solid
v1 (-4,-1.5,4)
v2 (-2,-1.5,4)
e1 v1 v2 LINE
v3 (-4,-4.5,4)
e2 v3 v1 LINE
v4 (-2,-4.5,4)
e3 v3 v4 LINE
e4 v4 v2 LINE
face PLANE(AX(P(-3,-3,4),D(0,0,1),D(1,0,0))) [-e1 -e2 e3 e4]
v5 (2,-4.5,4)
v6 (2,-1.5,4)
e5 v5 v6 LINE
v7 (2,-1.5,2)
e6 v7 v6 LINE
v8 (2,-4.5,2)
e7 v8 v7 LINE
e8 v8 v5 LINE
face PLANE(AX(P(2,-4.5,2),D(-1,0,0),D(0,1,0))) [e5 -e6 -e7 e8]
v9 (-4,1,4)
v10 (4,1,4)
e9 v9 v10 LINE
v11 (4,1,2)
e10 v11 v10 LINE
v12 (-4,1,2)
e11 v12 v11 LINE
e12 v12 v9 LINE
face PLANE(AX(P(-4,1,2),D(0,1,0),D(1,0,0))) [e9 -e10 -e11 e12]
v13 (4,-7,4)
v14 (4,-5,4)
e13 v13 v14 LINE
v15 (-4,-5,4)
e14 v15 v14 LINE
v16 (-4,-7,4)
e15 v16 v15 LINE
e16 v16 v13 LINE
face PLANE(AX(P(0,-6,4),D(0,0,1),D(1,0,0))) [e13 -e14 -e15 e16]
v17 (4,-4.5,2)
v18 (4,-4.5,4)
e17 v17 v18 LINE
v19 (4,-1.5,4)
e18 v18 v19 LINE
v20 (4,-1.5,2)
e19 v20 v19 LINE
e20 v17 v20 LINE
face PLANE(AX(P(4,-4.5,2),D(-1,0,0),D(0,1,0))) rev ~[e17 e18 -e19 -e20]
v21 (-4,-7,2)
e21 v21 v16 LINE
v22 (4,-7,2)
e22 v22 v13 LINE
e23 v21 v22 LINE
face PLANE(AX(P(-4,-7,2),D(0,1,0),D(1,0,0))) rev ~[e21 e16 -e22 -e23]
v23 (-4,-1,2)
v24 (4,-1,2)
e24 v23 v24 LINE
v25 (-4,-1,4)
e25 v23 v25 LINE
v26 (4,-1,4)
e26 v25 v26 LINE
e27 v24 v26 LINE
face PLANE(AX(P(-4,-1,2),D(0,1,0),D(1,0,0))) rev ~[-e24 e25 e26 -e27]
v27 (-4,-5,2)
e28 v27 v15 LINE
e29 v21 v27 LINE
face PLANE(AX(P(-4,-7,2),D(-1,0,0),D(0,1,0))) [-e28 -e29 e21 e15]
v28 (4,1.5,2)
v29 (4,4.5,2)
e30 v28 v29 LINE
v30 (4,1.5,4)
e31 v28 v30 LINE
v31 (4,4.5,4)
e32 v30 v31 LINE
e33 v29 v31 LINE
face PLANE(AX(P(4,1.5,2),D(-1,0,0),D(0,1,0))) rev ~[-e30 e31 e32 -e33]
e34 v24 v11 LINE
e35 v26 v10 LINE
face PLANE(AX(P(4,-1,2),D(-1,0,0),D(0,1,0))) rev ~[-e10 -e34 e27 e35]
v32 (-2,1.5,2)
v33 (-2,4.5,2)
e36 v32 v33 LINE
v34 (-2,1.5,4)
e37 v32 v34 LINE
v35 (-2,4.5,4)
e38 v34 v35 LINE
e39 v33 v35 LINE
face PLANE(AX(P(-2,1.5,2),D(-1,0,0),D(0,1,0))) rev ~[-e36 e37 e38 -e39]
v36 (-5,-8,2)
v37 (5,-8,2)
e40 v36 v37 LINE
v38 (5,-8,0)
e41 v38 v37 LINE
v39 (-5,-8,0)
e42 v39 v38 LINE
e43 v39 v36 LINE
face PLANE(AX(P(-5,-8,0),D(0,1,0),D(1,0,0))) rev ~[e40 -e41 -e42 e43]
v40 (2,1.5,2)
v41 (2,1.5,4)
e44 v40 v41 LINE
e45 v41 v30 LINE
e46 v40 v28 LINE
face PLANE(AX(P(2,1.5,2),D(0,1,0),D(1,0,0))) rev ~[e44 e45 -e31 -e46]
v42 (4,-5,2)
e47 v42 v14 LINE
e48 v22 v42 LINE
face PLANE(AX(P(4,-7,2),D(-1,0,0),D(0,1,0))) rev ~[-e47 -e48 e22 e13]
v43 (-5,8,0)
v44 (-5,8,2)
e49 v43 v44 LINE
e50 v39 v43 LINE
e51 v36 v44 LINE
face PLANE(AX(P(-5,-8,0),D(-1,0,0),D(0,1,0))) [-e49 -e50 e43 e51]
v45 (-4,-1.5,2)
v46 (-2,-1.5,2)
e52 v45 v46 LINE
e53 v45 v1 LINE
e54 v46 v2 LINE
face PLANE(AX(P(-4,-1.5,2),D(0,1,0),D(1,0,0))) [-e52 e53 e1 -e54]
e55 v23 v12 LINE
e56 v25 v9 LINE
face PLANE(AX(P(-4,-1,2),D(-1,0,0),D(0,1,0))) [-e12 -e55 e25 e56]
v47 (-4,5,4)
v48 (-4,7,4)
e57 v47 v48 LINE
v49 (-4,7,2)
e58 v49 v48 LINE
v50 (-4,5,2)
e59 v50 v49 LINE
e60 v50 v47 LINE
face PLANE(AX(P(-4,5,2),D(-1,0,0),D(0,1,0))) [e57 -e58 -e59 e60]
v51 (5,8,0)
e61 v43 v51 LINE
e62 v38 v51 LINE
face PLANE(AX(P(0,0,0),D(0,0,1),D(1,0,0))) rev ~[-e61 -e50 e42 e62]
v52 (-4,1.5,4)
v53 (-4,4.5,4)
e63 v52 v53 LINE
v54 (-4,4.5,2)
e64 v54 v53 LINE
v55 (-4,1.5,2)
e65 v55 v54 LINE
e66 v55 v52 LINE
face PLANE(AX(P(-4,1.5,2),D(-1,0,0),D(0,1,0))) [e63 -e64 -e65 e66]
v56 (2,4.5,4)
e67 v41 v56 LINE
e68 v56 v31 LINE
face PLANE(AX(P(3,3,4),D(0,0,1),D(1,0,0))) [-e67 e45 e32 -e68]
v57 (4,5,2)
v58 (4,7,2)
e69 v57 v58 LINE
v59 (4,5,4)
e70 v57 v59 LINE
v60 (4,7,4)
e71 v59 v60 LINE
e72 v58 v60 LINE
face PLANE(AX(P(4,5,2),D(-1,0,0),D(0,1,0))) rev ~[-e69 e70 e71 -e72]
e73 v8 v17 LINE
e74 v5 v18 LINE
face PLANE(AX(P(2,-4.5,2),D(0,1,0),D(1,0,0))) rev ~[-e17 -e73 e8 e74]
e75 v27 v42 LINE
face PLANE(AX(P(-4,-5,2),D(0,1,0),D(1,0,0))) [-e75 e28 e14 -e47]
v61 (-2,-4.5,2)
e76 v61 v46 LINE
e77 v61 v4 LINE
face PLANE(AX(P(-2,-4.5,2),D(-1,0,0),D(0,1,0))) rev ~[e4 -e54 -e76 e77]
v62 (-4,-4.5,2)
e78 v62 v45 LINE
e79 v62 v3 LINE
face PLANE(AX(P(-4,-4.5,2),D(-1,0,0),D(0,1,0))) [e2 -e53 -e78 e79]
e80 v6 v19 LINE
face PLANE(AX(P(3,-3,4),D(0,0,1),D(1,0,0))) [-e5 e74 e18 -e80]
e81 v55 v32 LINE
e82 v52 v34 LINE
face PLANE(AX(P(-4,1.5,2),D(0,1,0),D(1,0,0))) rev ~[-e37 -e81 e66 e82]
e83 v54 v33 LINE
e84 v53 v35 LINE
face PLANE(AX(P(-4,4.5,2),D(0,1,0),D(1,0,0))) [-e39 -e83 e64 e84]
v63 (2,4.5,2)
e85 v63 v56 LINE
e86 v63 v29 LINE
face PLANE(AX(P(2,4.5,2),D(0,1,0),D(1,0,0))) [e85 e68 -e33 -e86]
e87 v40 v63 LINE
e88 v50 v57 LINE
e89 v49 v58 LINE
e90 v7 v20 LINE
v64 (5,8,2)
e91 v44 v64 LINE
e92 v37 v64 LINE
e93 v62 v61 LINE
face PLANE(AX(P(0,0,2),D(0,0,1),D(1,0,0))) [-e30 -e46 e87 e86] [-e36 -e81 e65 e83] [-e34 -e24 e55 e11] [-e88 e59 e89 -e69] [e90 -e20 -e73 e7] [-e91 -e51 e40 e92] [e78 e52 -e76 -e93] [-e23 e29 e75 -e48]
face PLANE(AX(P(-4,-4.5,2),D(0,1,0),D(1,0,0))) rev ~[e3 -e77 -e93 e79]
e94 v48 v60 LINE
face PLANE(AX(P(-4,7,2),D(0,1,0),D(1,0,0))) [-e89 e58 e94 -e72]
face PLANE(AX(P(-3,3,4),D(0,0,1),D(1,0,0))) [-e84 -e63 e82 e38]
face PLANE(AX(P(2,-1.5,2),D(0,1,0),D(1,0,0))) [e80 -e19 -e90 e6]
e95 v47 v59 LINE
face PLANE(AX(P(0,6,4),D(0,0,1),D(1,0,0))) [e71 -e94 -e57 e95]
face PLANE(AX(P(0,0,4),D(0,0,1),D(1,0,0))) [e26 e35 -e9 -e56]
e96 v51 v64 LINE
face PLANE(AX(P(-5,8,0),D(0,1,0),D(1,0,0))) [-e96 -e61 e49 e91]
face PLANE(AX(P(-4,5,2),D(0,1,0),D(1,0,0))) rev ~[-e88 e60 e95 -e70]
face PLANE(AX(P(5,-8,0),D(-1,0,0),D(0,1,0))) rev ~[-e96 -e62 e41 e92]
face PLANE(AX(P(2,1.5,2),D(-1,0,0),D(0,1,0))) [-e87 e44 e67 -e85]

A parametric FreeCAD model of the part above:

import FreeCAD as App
import Part
import Sketcher

V = App.Vector

doc = App.newDocument("Part")
body = doc.addObject("PartDesign::Body", "Body")

sketch1 = body.newObject("Sketcher::SketchObject", "Sketch")
sketch1.AttachmentSupport = (doc.getObject("XY_Plane"), [""])
sketch1.MapMode = "FlatFace"
sketch1.addGeometry([
    Part.LineSegment(V(-5, 8, 0), V(-5, -8, 0)),
    Part.LineSegment(V(-5, -8, 0), V(5, -8, 0)),
    Part.LineSegment(V(5, -8, 0), V(5, 8, 0)),
    Part.LineSegment(V(5, 8, 0), V(-5, 8, 0)),
], False)
sketch1.addConstraint([
    Sketcher.Constraint("Coincident", 0, 2, 1, 1),
    Sketcher.Constraint("Coincident", 1, 2, 2, 1),
    Sketcher.Constraint("Coincident", 2, 2, 3, 1),
    Sketcher.Constraint("Coincident", 3, 2, 0, 1),
    Sketcher.Constraint("Vertical", 0),
    Sketcher.Constraint("Horizontal", 1),
    Sketcher.Constraint("Vertical", 2),
    Sketcher.Constraint("Horizontal", 3),
    Sketcher.Constraint("Symmetric", 0, 2, 2, 2, -1, 1),
    Sketcher.Constraint("DistanceX", 1, 1, 1, 2, 10.0),
    Sketcher.Constraint("DistanceY", 0, 2, 0, 1, 16.0),
])
pad1 = body.newObject("PartDesign::Pad", "Pad")
pad1.Profile = sketch1
pad1.Length = 2

sketch2 = body.newObject("Sketcher::SketchObject", "Sketch001")
sketch2.AttachmentSupport = (doc.getObject("XY_Plane"), [""])
sketch2.MapMode = "FlatFace"
sketch2.AttachmentOffset = App.Placement(V(0, 0, 2), App.Rotation())
sketch2.addGeometry([
    Part.LineSegment(V(-4, 1, 0), V(-4, -1, 0)),
    Part.LineSegment(V(-4, -1, 0), V(4, -1, 0)),
    Part.LineSegment(V(4, -1, 0), V(4, 1, 0)),
    Part.LineSegment(V(4, 1, 0), V(-4, 1, 0)),
    Part.LineSegment(V(-4, -5, 0), V(-4, -7, 0)),
    Part.LineSegment(V(-4, -7, 0), V(4, -7, 0)),
    Part.LineSegment(V(4, -7, 0), V(4, -5, 0)),
    Part.LineSegment(V(4, -5, 0), V(-4, -5, 0)),
    Part.LineSegment(V(-4, 4.5, 0), V(-4, 1.5, 0)),
    Part.LineSegment(V(-4, 1.5, 0), V(-2, 1.5, 0)),
    Part.LineSegment(V(-2, 1.5, 0), V(-2, 4.5, 0)),
    Part.LineSegment(V(-2, 4.5, 0), V(-4, 4.5, 0)),
    Part.LineSegment(V(2, 4.5, 0), V(2, 1.5, 0)),
    Part.LineSegment(V(2, 1.5, 0), V(4, 1.5, 0)),
    Part.LineSegment(V(4, 1.5, 0), V(4, 4.5, 0)),
    Part.LineSegment(V(4, 4.5, 0), V(2, 4.5, 0)),
    Part.LineSegment(V(-4, -1.5, 0), V(-4, -4.5, 0)),
    Part.LineSegment(V(-4, -4.5, 0), V(-2, -4.5, 0)),
    Part.LineSegment(V(-2, -4.5, 0), V(-2, -1.5, 0)),
    Part.LineSegment(V(-2, -1.5, 0), V(-4, -1.5, 0)),
    Part.LineSegment(V(2, -1.5, 0), V(2, -4.5, 0)),
    Part.LineSegment(V(2, -4.5, 0), V(4, -4.5, 0)),
    Part.LineSegment(V(4, -4.5, 0), V(4, -1.5, 0)),
    Part.LineSegment(V(4, -1.5, 0), V(2, -1.5, 0)),
    Part.LineSegment(V(-4, 7, 0), V(-4, 5, 0)),
    Part.LineSegment(V(-4, 5, 0), V(4, 5, 0)),
    Part.LineSegment(V(4, 5, 0), V(4, 7, 0)),
    Part.LineSegment(V(4, 7, 0), V(-4, 7, 0)),
], False)
sketch2.addConstraint([
    Sketcher.Constraint("Coincident", 0, 2, 1, 1),
    Sketcher.Constraint("Coincident", 1, 2, 2, 1),
    Sketcher.Constraint("Coincident", 2, 2, 3, 1),
    Sketcher.Constraint("Coincident", 3, 2, 0, 1),
    Sketcher.Constraint("Coincident", 4, 2, 5, 1),
    Sketcher.Constraint("Coincident", 5, 2, 6, 1),
    Sketcher.Constraint("Coincident", 6, 2, 7, 1),
    Sketcher.Constraint("Coincident", 7, 2, 4, 1),
    Sketcher.Constraint("Coincident", 8, 2, 9, 1),
    Sketcher.Constraint("Coincident", 9, 2, 10, 1),
    Sketcher.Constraint("Coincident", 10, 2, 11, 1),
    Sketcher.Constraint("Coincident", 11, 2, 8, 1),
    Sketcher.Constraint("Coincident", 12, 2, 13, 1),
    Sketcher.Constraint("Coincident", 13, 2, 14, 1),
    Sketcher.Constraint("Coincident", 14, 2, 15, 1),
    Sketcher.Constraint("Coincident", 15, 2, 12, 1),
    Sketcher.Constraint("Coincident", 16, 2, 17, 1),
    Sketcher.Constraint("Coincident", 17, 2, 18, 1),
    Sketcher.Constraint("Coincident", 18, 2, 19, 1),
    Sketcher.Constraint("Coincident", 19, 2, 16, 1),
    Sketcher.Constraint("Coincident", 20, 2, 21, 1),
    Sketcher.Constraint("Coincident", 21, 2, 22, 1),
    Sketcher.Constraint("Coincident", 22, 2, 23, 1),
    Sketcher.Constraint("Coincident", 23, 2, 20, 1),
    Sketcher.Constraint("Coincident", 24, 2, 25, 1),
    Sketcher.Constraint("Coincident", 25, 2, 26, 1),
    Sketcher.Constraint("Coincident", 26, 2, 27, 1),
    Sketcher.Constraint("Coincident", 27, 2, 24, 1),
    Sketcher.Constraint("Vertical", 0),
    Sketcher.Constraint("Horizontal", 1),
    Sketcher.Constraint("Vertical", 2),
    Sketcher.Constraint("Horizontal", 3),
    Sketcher.Constraint("Vertical", 4),
    Sketcher.Constraint("Horizontal", 5),
    Sketcher.Constraint("Vertical", 6),
    Sketcher.Constraint("Horizontal", 7),
    Sketcher.Constraint("Vertical", 8),
    Sketcher.Constraint("Horizontal", 9),
    Sketcher.Constraint("Vertical", 10),
    Sketcher.Constraint("Horizontal", 11),
    Sketcher.Constraint("Vertical", 12),
    Sketcher.Constraint("Horizontal", 13),
    Sketcher.Constraint("Vertical", 14),
    Sketcher.Constraint("Horizontal", 15),
    Sketcher.Constraint("Vertical", 16),
    Sketcher.Constraint("Horizontal", 17),
    Sketcher.Constraint("Vertical", 18),
    Sketcher.Constraint("Horizontal", 19),
    Sketcher.Constraint("Vertical", 20),
    Sketcher.Constraint("Horizontal", 21),
    Sketcher.Constraint("Vertical", 22),
    Sketcher.Constraint("Horizontal", 23),
    Sketcher.Constraint("Vertical", 24),
    Sketcher.Constraint("Horizontal", 25),
    Sketcher.Constraint("Vertical", 26),
    Sketcher.Constraint("Horizontal", 27),
    Sketcher.Constraint("Symmetric", 0, 2, 2, 2, -1, 1),
    Sketcher.Constraint("Symmetric", 14, 2, 16, 2, -1, 1),
    Sketcher.Constraint("Symmetric", 12, 2, 18, 2, -1, 1),
    Sketcher.Constraint("Symmetric", 10, 2, 20, 2, -1, 1),
    Sketcher.Constraint("Symmetric", 8, 2, 22, 2, -1, 1),
    Sketcher.Constraint("Symmetric", 6, 2, 24, 2, -1, 1),
    Sketcher.Constraint("Symmetric", 4, 2, 26, 2, -1, 1),
    Sketcher.Constraint("Symmetric", 9, 2, 12, 2, -2),
    Sketcher.Constraint("Symmetric", 11, 2, 14, 2, -2),
    Sketcher.Constraint("Vertical", 3, 2, 4, 2),
    Sketcher.Constraint("Vertical", 2, 2, 5, 2),
    Sketcher.Constraint("Vertical", 7, 2, 8, 2),
    Sketcher.Constraint("Equal", 23, 0),
    Sketcher.Constraint("Equal", 2, 4),
    Sketcher.Constraint("DistanceX", 1, 1, 1, 2, 8.0),
    Sketcher.Constraint("DistanceX", 9, 1, 9, 2, 2.0),
    Sketcher.Constraint("DistanceY", 8, 2, 8, 1, 3.0),
    Sketcher.Constraint("DistanceY", 4, 2, -1, 1, 7.0),
    Sketcher.Constraint("DistanceY", 16, 2, 8, 2, 6.0),
])
pad2 = body.newObject("PartDesign::Pad", "Pad001")
pad2.Profile = sketch2
pad2.Length = 2

doc.recompute()
